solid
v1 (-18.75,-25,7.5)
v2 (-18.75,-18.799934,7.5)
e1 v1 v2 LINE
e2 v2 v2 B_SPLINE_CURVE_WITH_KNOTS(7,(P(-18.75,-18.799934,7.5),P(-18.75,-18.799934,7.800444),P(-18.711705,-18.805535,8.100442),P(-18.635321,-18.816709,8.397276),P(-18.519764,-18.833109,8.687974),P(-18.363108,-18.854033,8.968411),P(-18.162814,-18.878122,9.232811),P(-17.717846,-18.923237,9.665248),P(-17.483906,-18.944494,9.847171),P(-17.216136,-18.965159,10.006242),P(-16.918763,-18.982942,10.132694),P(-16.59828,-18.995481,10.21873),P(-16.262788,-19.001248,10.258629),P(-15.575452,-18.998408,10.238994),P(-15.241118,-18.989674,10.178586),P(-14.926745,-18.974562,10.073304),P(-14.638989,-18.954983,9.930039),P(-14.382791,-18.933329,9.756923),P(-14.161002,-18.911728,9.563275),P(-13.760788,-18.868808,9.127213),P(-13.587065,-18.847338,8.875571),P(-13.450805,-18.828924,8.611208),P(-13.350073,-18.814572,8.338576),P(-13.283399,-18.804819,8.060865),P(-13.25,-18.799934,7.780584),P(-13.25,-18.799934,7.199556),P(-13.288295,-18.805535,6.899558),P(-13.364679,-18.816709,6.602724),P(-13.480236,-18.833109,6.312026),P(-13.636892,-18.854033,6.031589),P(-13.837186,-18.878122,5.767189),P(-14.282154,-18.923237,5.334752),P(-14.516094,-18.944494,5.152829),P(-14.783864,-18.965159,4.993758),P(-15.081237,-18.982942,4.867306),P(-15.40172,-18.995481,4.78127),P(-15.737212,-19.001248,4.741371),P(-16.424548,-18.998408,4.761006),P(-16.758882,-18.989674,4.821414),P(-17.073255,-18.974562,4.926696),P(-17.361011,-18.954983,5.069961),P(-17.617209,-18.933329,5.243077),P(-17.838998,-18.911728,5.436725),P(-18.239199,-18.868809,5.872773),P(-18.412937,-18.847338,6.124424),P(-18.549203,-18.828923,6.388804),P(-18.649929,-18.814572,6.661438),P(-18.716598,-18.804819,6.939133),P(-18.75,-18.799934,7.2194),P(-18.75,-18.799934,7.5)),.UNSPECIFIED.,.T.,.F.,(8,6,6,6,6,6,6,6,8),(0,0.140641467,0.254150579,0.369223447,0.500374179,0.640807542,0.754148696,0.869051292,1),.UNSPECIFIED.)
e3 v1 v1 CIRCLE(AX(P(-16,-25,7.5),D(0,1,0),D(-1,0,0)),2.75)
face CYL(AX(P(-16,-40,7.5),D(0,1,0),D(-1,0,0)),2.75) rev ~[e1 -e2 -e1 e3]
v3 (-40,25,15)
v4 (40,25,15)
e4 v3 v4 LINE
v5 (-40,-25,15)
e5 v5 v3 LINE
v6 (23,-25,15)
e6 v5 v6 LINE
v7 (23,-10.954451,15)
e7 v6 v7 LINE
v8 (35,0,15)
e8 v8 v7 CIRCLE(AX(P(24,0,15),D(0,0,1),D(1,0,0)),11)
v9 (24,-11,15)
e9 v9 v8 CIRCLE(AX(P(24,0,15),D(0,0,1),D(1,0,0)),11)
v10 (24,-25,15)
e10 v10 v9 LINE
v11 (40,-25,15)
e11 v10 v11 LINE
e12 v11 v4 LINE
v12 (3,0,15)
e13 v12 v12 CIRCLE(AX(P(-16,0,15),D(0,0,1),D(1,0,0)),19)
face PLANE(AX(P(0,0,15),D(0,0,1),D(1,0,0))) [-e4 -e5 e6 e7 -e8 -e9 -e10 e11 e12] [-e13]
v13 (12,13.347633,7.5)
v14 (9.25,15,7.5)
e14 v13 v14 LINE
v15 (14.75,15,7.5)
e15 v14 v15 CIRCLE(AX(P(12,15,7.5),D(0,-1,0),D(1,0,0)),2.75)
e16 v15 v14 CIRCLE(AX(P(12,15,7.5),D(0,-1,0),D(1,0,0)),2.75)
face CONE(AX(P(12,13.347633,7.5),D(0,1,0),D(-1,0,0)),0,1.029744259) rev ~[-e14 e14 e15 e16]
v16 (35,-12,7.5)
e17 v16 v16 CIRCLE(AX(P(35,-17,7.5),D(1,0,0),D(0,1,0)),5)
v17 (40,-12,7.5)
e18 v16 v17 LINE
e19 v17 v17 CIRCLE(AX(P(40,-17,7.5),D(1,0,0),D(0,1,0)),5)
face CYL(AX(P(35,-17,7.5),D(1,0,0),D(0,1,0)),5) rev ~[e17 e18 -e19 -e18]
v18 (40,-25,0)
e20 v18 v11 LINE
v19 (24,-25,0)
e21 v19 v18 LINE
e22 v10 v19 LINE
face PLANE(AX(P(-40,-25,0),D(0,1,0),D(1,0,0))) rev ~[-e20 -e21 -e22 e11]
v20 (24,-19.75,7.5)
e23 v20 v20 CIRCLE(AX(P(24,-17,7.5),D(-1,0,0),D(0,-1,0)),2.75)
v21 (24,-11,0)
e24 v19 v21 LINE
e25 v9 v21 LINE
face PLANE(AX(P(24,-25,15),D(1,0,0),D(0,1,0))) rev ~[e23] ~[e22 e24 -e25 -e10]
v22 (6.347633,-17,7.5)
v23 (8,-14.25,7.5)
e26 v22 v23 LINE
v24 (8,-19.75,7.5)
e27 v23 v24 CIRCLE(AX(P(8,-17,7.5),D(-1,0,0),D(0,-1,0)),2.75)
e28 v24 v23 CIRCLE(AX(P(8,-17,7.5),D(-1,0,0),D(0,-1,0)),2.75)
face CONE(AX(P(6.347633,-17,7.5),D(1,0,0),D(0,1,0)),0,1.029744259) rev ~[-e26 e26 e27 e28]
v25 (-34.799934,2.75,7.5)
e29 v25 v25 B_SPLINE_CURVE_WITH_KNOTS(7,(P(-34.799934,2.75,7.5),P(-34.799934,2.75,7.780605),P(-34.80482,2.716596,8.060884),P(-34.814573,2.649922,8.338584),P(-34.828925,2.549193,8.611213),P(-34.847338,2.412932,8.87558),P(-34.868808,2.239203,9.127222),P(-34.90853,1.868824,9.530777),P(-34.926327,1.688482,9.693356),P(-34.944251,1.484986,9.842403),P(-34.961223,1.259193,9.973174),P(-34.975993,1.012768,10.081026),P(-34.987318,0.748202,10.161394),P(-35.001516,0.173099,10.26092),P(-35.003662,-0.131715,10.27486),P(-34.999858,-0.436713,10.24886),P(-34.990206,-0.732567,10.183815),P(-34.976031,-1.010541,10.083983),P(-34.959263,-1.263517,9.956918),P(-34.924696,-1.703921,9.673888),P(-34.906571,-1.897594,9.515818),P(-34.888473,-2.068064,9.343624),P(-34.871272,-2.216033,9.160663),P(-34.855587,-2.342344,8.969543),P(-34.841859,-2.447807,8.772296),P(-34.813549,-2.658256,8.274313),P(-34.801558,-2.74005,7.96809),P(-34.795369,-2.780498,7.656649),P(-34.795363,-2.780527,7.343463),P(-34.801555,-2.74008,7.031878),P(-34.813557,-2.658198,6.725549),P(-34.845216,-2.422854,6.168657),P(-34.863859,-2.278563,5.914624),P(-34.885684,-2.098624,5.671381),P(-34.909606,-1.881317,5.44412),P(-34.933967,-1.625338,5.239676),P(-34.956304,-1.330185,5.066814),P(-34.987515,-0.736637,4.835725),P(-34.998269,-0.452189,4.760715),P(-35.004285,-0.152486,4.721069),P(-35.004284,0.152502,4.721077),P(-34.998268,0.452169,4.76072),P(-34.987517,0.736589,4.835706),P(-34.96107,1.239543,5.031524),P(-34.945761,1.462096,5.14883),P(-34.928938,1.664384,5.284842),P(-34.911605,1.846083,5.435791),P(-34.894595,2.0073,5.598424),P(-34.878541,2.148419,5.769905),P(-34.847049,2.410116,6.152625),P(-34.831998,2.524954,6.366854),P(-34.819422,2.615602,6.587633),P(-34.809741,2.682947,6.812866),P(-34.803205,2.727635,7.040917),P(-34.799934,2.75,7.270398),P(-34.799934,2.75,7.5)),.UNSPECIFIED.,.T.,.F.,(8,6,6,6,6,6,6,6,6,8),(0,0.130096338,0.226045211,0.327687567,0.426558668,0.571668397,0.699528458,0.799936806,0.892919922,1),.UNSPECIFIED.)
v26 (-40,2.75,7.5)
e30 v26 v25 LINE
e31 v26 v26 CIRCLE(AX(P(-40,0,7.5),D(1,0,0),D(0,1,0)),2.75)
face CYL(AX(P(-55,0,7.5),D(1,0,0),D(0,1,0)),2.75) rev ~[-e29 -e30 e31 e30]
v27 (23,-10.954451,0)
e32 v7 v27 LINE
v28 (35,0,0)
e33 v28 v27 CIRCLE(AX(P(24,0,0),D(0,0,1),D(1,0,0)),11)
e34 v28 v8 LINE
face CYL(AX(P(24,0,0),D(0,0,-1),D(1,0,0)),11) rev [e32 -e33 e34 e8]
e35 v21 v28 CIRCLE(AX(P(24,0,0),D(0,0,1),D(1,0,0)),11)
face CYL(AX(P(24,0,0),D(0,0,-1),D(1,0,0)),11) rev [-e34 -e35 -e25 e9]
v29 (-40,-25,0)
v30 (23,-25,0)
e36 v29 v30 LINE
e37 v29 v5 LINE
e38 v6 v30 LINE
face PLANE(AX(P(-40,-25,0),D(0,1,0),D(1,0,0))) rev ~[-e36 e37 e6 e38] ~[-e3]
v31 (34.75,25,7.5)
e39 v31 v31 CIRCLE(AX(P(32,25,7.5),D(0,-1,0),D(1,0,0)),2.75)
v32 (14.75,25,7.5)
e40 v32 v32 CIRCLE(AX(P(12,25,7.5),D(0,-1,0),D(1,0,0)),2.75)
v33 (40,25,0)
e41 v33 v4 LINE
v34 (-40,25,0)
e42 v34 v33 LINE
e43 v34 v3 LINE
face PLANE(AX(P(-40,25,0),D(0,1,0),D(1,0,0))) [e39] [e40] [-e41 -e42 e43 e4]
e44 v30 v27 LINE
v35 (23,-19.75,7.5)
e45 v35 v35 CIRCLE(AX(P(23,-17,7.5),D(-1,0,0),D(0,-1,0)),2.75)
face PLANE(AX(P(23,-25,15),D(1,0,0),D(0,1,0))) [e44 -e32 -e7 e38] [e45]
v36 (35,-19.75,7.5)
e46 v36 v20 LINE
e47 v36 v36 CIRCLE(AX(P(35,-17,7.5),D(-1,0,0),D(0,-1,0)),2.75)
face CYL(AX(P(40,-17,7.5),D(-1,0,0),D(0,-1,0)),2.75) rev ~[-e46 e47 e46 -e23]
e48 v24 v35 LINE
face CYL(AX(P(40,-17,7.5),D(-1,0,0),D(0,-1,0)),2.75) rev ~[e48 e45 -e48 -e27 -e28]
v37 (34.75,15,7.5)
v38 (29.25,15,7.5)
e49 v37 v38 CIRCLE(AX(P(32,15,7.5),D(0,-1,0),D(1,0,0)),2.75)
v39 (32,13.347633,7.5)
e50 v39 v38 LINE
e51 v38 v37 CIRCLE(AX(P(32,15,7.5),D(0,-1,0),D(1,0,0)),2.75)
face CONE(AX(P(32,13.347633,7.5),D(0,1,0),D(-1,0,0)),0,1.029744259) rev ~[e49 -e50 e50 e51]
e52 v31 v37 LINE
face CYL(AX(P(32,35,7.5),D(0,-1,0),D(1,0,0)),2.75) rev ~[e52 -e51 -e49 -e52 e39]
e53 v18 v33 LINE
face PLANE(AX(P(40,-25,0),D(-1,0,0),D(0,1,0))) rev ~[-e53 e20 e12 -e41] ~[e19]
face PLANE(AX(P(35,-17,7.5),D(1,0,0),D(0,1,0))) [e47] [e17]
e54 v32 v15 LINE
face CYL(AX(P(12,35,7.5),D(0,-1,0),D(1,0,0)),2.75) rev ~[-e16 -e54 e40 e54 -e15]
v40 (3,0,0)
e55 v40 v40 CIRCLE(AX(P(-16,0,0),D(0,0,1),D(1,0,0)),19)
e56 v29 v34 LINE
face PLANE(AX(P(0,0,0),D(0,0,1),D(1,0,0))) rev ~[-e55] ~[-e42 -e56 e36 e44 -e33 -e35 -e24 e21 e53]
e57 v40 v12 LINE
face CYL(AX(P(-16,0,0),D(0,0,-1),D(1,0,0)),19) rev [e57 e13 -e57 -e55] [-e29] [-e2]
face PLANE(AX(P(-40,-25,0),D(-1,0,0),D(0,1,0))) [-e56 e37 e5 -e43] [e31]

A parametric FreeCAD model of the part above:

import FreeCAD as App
import Part
import Sketcher
Q = App.Units.Quantity


def add_polygon(sketch, points):
    """Adds a closed chain of lines whose ends are joined by coincident constraints."""
    first, n = sketch.GeometryCount, len(points)
    for a, b in zip(points, points[1:] + points[:1]):
        sketch.addGeometry(Part.LineSegment(App.Vector(*a, 0), App.Vector(*b, 0)), False)
    for i in range(n):
        sketch.addConstraint(Sketcher.Constraint("Coincident", first + i, 2, first + (i + 1) % n, 1))

doc = App.newDocument("Part")
body = doc.addObject("PartDesign::Body", "Body")

# Sketch on XY plane
sketch1 = doc.addObject("Sketcher::SketchObject", "Sketch")
body.addObject(sketch1)
sketch1.AttachmentSupport = (doc.XY_Plane, [""])
sketch1.MapMode = "FlatFace"
add_polygon(sketch1, [(-40, 25), (-40, -25), (40, -25), (40, 25)])  # lines 0-3
sketch1.addGeometry(Part.Circle(App.Vector(-16, 0, 0), App.Vector(0, 0, 1), 19), False)  # 4
sketch1.addGeometry(Part.Circle(App.Vector(24, 0, 0), App.Vector(0, 0, 1), 11), False)  # 5
sketch1.addConstraint(Sketcher.Constraint("Vertical", 0))
sketch1.addConstraint(Sketcher.Constraint("Horizontal", 1))
sketch1.addConstraint(Sketcher.Constraint("Vertical", 2))
sketch1.addConstraint(Sketcher.Constraint("Horizontal", 3))
sketch1.addConstraint(Sketcher.Constraint("Symmetric", 0, 2, 2, 2, -1, 1))
sketch1.addConstraint(Sketcher.Constraint("PointOnObject", 4, 3, -1))
sketch1.addConstraint(Sketcher.Constraint("PointOnObject", 5, 3, -1))
sketch1.addConstraint(Sketcher.Constraint("Diameter", 4, Q("38 mm")))
sketch1.addConstraint(Sketcher.Constraint("Diameter", 5, Q("22 mm")))
sketch1.addConstraint(Sketcher.Constraint("DistanceX", 1, 1, 1, 2, Q("80 mm")))
sketch1.addConstraint(Sketcher.Constraint("DistanceY", 0, 2, 0, 1, Q("50 mm")))
sketch1.addConstraint(Sketcher.Constraint("DistanceX", 4, 3, -1, 1, Q("16 mm")))
sketch1.addConstraint(Sketcher.Constraint("DistanceX", -1, 1, 5, 3, Q("24 mm")))
pad1 = doc.addObject("PartDesign::Pad", "Pad")
body.addObject(pad1)
pad1.Profile = sketch1
pad1.Length = 15

# Sketch on XY plane
sketch2 = doc.addObject("Sketcher::SketchObject", "Sketch001")
body.addObject(sketch2)
sketch2.AttachmentSupport = (doc.XY_Plane, [""])
sketch2.MapMode = "FlatFace"
sketch2.AttachmentOffset = App.Placement(App.Vector(0, 0, 15), App.Rotation())
add_polygon(sketch2, [(23, -10), (23, -25), (24, -25), (24, -10)])  # lines 0-3
sketch2.addConstraint(Sketcher.Constraint("Vertical", 0))
sketch2.addConstraint(Sketcher.Constraint("Horizontal", 1))
sketch2.addConstraint(Sketcher.Constraint("Vertical", 2))
sketch2.addConstraint(Sketcher.Constraint("Horizontal", 3))
sketch2.addConstraint(Sketcher.Constraint("DistanceX", 1, 1, 1, 2, Q("1 mm")))
sketch2.addConstraint(Sketcher.Constraint("DistanceY", 0, 2, 0, 1, Q("15 mm")))
sketch2.addConstraint(Sketcher.Constraint("DistanceX", -1, 1, 0, 2, Q("23 mm")))
sketch2.addConstraint(Sketcher.Constraint("DistanceY", 0, 2, -1, 1, Q("25 mm")))
pocket1 = doc.addObject("PartDesign::Pocket", "Pocket")
body.addObject(pocket1)
pocket1.Profile = sketch2
pocket1.Length = 25

# Sketch on YZ plane
sketch3 = doc.addObject("Sketcher::SketchObject", "Sketch002")
body.addObject(sketch3)
sketch3.AttachmentSupport = (doc.YZ_Plane, [""])
sketch3.MapMode = "FlatFace"
sketch3.AttachmentOffset = App.Placement(App.Vector(0, 0, 40), App.Rotation())
sketch3.addGeometry(Part.Circle(App.Vector(-17, 7.5, 0), App.Vector(0, 0, 1), 2.8), False)
sketch3.addConstraint(Sketcher.Constraint("Diameter", 0, Q("5.5 mm")))
sketch3.addConstraint(Sketcher.Constraint("DistanceX", 0, 3, -1, 1, Q("17 mm")))
sketch3.addConstraint(Sketcher.Constraint("DistanceY", -1, 1, 0, 3, Q("7.5 mm")))
doc.recompute()
hole = doc.addObject("PartDesign::Hole", "Hole")
body.addObject(hole)
hole.Profile = sketch3
hole.ThreadType = "None"
hole.Diameter = 5.5
hole.DepthType = "Dimension"
hole.Depth = 18
hole.DrillPoint = "Angled"
hole.DrillPointAngle = 118
hole.HoleCutType = "Counterbore"
hole.HoleCutDiameter = 10
hole.HoleCutDepth = 5

# Sketch on YZ plane
sketch4 = doc.addObject("Sketcher::SketchObject", "Sketch003")
body.addObject(sketch4)
sketch4.AttachmentSupport = (doc.YZ_Plane, [""])
sketch4.MapMode = "FlatFace"
sketch4.AttachmentOffset = App.Placement(App.Vector(0, 0, 23), App.Rotation())
sketch4.addGeometry(Part.Circle(App.Vector(-17, 7.5, 0), App.Vector(0, 0, 1), 2.8), False)
sketch4.addConstraint(Sketcher.Constraint("Diameter", 0, Q("5.5 mm")))
sketch4.addConstraint(Sketcher.Constraint("DistanceX", 0, 3, -1, 1, Q("17 mm")))
sketch4.addConstraint(Sketcher.Constraint("DistanceY", -1, 1, 0, 3, Q("7.5 mm")))
doc.recompute()
hole2 = doc.addObject("PartDesign::Hole", "Hole001")
body.addObject(hole2)
hole2.Profile = sketch4
hole2.ThreadType = "None"
hole2.Diameter = 5.5
hole2.DepthType = "Dimension"
hole2.Depth = 15
hole2.DrillPoint = "Angled"
hole2.DrillPointAngle = 118

# Sketch on XZ plane
sketch5 = doc.addObject("Sketcher::SketchObject", "Sketch004")
body.addObject(sketch5)
sketch5.AttachmentSupport = (doc.XZ_Plane, [""])
sketch5.MapMode = "FlatFace"
sketch5.AttachmentOffset = App.Placement(App.Vector(0, 0, 25), App.Rotation())
sketch5.addGeometry(Part.Circle(App.Vector(-16, 7.5, 0), App.Vector(0, 0, 1), 2.8), False)
sketch5.addConstraint(Sketcher.Constraint("Diameter", 0, Q("5.5 mm")))
sketch5.addConstraint(Sketcher.Constraint("DistanceX", 0, 3, -1, 1, Q("16 mm")))
sketch5.addConstraint(Sketcher.Constraint("DistanceY", -1, 1, 0, 3, Q("7.5 mm")))
doc.recompute()
hole3 = doc.addObject("PartDesign::Hole", "Hole002")
body.addObject(hole3)
hole3.Profile = sketch5
hole3.ThreadType = "None"
hole3.Diameter = 5.5
hole3.DepthType = "Dimension"
hole3.Depth = 15
hole3.DrillPoint = "Angled"
hole3.DrillPointAngle = 118

# Sketch on YZ plane
sketch6 = doc.addObject("Sketcher::SketchObject", "Sketch005")
body.addObject(sketch6)
sketch6.AttachmentSupport = (doc.YZ_Plane, [""])
sketch6.MapMode = "FlatFace"
sketch6.AttachmentOffset = App.Placement(App.Vector(0, 0, -40), App.Rotation())
sketch6.addGeometry(Part.Circle(App.Vector(0, 7.5, 0), App.Vector(0, 0, 1), 2.8), False)
sketch6.addConstraint(Sketcher.Constraint("PointOnObject", 0, 3, -2))
sketch6.addConstraint(Sketcher.Constraint("Diameter", 0, Q("5.5 mm")))
sketch6.addConstraint(Sketcher.Constraint("DistanceY", -1, 1, 0, 3, Q("7.5 mm")))
doc.recompute()
hole4 = doc.addObject("PartDesign::Hole", "Hole003")
body.addObject(hole4)
hole4.Profile = sketch6
hole4.ThreadType = "None"
hole4.Diameter = 5.5
hole4.DepthType = "Dimension"
hole4.Depth = 15
hole4.DrillPoint = "Angled"
hole4.DrillPointAngle = 118
hole4.Reversed = True

# Sketch on XZ plane
sketch7 = doc.addObject("Sketcher::SketchObject", "Sketch006")
body.addObject(sketch7)
sketch7.AttachmentSupport = (doc.XZ_Plane, [""])
sketch7.MapMode = "FlatFace"
sketch7.AttachmentOffset = App.Placement(App.Vector(0, 0, -25), App.Rotation())
sketch7.addGeometry(Part.Circle(App.Vector(32, 7.5, 0), App.Vector(0, 0, 1), 2.8), False)
sketch7.addGeometry(Part.Circle(App.Vector(12, 7.5, 0), App.Vector(0, 0, 1), 2.8), False)
sketch7.addConstraint(Sketcher.Constraint("Equal", 0, 1))
sketch7.addConstraint(Sketcher.Constraint("Horizontal", 0, 3, 1, 3))
sketch7.addConstraint(Sketcher.Constraint("Diameter", 0, Q("5.5 mm")))
sketch7.addConstraint(Sketcher.Constraint("DistanceX", -1, 1, 0, 3, Q("32 mm")))
sketch7.addConstraint(Sketcher.Constraint("DistanceX", -1, 1, 1, 3, Q("12 mm")))
sketch7.addConstraint(Sketcher.Constraint("DistanceY", -1, 1, 0, 3, Q("7.5 mm")))
doc.recompute()
hole5 = doc.addObject("PartDesign::Hole", "Hole004")
body.addObject(hole5)
hole5.Profile = sketch7
hole5.ThreadType = "None"
hole5.Diameter = 5.5
hole5.DepthType = "Dimension"
hole5.Depth = 10
hole5.DrillPoint = "Angled"
hole5.DrillPointAngle = 118
hole5.Reversed = True

doc.recompute()
